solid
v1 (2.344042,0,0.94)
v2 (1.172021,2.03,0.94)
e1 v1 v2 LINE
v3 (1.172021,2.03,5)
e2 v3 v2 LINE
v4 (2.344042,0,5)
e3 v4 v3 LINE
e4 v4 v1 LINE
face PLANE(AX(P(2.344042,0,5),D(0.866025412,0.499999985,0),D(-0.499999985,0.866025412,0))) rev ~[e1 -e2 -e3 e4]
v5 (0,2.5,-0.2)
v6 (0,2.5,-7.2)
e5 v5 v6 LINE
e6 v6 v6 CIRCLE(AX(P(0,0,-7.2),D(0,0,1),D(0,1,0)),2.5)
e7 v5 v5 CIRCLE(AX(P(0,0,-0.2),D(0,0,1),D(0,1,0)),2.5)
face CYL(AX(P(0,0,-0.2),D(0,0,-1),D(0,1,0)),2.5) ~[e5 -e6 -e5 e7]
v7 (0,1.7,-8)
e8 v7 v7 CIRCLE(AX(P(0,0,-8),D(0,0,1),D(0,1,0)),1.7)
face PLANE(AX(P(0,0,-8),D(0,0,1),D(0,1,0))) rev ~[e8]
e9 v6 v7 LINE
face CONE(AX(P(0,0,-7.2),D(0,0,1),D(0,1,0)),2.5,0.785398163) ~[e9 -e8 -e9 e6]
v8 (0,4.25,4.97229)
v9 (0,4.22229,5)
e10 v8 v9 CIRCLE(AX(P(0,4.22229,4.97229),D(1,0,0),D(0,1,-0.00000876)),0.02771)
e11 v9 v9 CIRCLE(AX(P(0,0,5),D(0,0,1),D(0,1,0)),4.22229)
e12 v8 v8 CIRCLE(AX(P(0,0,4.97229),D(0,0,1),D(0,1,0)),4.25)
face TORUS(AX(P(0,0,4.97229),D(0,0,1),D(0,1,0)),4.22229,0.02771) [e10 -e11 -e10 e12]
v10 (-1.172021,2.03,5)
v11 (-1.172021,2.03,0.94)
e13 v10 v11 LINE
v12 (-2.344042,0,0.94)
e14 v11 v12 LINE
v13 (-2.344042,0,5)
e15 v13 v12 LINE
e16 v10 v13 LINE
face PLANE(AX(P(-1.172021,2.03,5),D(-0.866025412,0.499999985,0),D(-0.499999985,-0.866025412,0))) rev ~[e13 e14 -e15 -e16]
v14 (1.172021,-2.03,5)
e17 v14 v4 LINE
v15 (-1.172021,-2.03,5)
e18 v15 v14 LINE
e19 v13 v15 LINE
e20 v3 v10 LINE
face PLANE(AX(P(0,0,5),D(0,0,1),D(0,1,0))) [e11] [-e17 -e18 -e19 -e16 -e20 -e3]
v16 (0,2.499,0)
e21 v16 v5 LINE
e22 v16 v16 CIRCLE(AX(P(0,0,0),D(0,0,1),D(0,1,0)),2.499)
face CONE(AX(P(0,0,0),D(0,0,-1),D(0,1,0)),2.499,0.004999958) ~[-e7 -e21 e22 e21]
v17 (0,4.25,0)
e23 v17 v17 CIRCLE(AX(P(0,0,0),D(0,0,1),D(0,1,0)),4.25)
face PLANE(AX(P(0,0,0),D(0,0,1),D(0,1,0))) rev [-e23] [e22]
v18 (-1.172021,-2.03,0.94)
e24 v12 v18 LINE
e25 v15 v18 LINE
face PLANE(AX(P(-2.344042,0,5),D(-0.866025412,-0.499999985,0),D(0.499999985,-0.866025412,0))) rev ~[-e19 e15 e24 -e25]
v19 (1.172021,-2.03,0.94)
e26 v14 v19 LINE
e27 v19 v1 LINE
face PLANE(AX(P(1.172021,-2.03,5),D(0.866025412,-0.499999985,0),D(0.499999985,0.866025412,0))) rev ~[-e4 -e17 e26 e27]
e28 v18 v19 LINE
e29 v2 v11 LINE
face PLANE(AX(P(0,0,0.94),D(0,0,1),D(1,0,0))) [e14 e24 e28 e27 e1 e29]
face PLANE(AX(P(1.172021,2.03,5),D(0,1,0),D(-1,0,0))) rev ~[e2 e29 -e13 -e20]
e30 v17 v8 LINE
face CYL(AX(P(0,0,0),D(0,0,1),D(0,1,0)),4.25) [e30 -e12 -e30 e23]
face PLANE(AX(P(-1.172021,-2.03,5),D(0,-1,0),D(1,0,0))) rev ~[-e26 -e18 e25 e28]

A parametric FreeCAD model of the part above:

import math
import FreeCAD as App
import Part
import Sketcher
Q = App.Units.Quantity


def add_polygon(sketch, points):
    """Adds a closed chain of lines whose ends are joined by coincident constraints."""
    first, n = sketch.GeometryCount, len(points)
    for a, b in zip(points, points[1:] + points[:1]):
        sketch.addGeometry(Part.LineSegment(App.Vector(*a, 0), App.Vector(*b, 0)), False)
    for i in range(n):
        sketch.addConstraint(Sketcher.Constraint("Coincident", first + i, 2, first + (i + 1) % n, 1))

doc = App.newDocument("Part")
body = doc.addObject("PartDesign::Body", "Body")

# Sketch on YZ plane
sketch1 = body.newObject("Sketcher::SketchObject", "Sketch")
sketch1.AttachmentSupport = (doc.getObject("YZ_Plane"), [""])
sketch1.MapMode = "FlatFace"
sketch1.addGeometry(Part.LineSegment(App.Vector(2.499, 0, 0), App.Vector(4.25, 0, 0)), False)
sketch1.addGeometry(Part.LineSegment(App.Vector(4.25, 0, 0), App.Vector(4.25, 4.97229, 0)), False)
sketch1.addGeometry(Part.ArcOfCircle(Part.Circle(App.Vector(4.22229, 4.97229, 0), App.Vector(0, 0, 1), 0.02771), math.radians(-0.000502), math.radians(90.000502)), False)
sketch1.addGeometry(Part.LineSegment(App.Vector(4.22229, 5, 0), App.Vector(0, 5, 0)), False)
sketch1.addGeometry(Part.LineSegment(App.Vector(0, 5, 0), App.Vector(0, -8, 0)), False)
sketch1.addGeometry(Part.LineSegment(App.Vector(0, -8, 0), App.Vector(1.7, -8, 0)), False)
sketch1.addGeometry(Part.LineSegment(App.Vector(1.7, -8, 0), App.Vector(2.5, -7.2, 0)), False)
sketch1.addGeometry(Part.LineSegment(App.Vector(2.5, -7.2, 0), App.Vector(2.5, -0.2, 0)), False)
sketch1.addGeometry(Part.LineSegment(App.Vector(2.5, -0.2, 0), App.Vector(2.499, 0, 0)), False)
sketch1.addConstraint(Sketcher.Constraint("Coincident", 0, 2, 1, 1))
sketch1.addConstraint(Sketcher.Constraint("Coincident", 1, 2, 2, 1))
sketch1.addConstraint(Sketcher.Constraint("Coincident", 2, 2, 3, 1))
sketch1.addConstraint(Sketcher.Constraint("Coincident", 3, 2, 4, 1))
sketch1.addConstraint(Sketcher.Constraint("Coincident", 4, 2, 5, 1))
sketch1.addConstraint(Sketcher.Constraint("Coincident", 5, 2, 6, 1))
sketch1.addConstraint(Sketcher.Constraint("Coincident", 6, 2, 7, 1))
sketch1.addConstraint(Sketcher.Constraint("Coincident", 7, 2, 8, 1))
sketch1.addConstraint(Sketcher.Constraint("Coincident", 8, 2, 0, 1))
sketch1.addConstraint(Sketcher.Constraint("Horizontal", 0))
sketch1.addConstraint(Sketcher.Constraint("Vertical", 1))
sketch1.addConstraint(Sketcher.Constraint("Horizontal", 3))
sketch1.addConstraint(Sketcher.Constraint("Vertical", 4))
sketch1.addConstraint(Sketcher.Constraint("Horizontal", 5))
sketch1.addConstraint(Sketcher.Constraint("Vertical", 7))
sketch1.addConstraint(Sketcher.Constraint("PointOnObject", 0, 2, -1))
sketch1.addConstraint(Sketcher.Constraint("PointOnObject", 3, 2, -2))
sketch1.addConstraint(Sketcher.Constraint("Horizontal", 2, 3, 1, 2))
sketch1.addConstraint(Sketcher.Constraint("DistanceY", 4, 2, 4, 1, Q("13 mm")))
sketch1.addConstraint(Sketcher.Constraint("DistanceY", 7, 1, 7, 2, Q("7 mm")))
sketch1.addConstraint(Sketcher.Constraint("Angle", 6, Q("45 deg")))
sketch1.addConstraint(Sketcher.Constraint("DistanceX", 5, 1, 5, 2, Q("1.7 mm")))
sketch1.addConstraint(Sketcher.Constraint("DistanceY", -1, 1, 2, 2, Q("5 mm")))
sketch1.addConstraint(Sketcher.Constraint("DistanceX", -1, 1, 6, 2, Q("2.5 mm")))
sketch1.addConstraint(Sketcher.Constraint("DistanceX", 0, 1, 0, 2, Q("1.751 mm")))
sketch1.addConstraint(Sketcher.Constraint("DistanceX", -1, 1, 0, 2, Q("4.25 mm")))
sketch1.addConstraint(Sketcher.Constraint("Radius", 2, Q("0.02771 mm")))
sketch1.addConstraint(Sketcher.Constraint("DistanceX", 3, 2, 3, 1, Q("4.22229 mm")))
revolution = body.newObject("PartDesign::Revolution", "Revolution")
revolution.Profile = sketch1
revolution.ReferenceAxis = (sketch1, ["V_Axis"])
revolution.Angle = 360

# Sketch on XY plane
sketch2 = body.newObject("Sketcher::SketchObject", "Sketch001")
sketch2.AttachmentSupport = (doc.getObject("XY_Plane"), [""])
sketch2.MapMode = "FlatFace"
sketch2.AttachmentOffset = App.Placement(App.Vector(0, 0, 5), App.Rotation())
add_polygon(sketch2, [(2.344042, 0), (1.172021, 2.03), (-1.172021, 2.03), (-2.344042, 0), (-1.172021, -2.03), (1.172021, -2.03)])  # lines 0-5
sketch2.addConstraint(Sketcher.Constraint("Horizontal", 1))
sketch2.addConstraint(Sketcher.Constraint("Horizontal", 4))
sketch2.addConstraint(Sketcher.Constraint("Symmetric", 0, 2, 3, 2, -1, 1))
sketch2.addConstraint(Sketcher.Constraint("Symmetric", 2, 2, 5, 2, -1, 1))
sketch2.addConstraint(Sketcher.Constraint("PointOnObject", 2, 2, -1))
sketch2.addConstraint(Sketcher.Constraint("Parallel", 2, 5))
sketch2.addConstraint(Sketcher.Constraint("Vertical", 1, 2, 3, 2))
sketch2.addConstraint(Sketcher.Constraint("Angle", 0, Q("119.999999 deg")))
sketch2.addConstraint(Sketcher.Constraint("DistanceY", -1, 1, 0, 2, Q("2.03 mm")))
sketch2.addConstraint(Sketcher.Constraint("DistanceX", 1, 2, 1, 1, Q("2.344042 mm")))
pocket1 = body.newObject("PartDesign::Pocket", "Pocket")
pocket1.Profile = sketch2
pocket1.Length = 4.06

doc.recompute()
